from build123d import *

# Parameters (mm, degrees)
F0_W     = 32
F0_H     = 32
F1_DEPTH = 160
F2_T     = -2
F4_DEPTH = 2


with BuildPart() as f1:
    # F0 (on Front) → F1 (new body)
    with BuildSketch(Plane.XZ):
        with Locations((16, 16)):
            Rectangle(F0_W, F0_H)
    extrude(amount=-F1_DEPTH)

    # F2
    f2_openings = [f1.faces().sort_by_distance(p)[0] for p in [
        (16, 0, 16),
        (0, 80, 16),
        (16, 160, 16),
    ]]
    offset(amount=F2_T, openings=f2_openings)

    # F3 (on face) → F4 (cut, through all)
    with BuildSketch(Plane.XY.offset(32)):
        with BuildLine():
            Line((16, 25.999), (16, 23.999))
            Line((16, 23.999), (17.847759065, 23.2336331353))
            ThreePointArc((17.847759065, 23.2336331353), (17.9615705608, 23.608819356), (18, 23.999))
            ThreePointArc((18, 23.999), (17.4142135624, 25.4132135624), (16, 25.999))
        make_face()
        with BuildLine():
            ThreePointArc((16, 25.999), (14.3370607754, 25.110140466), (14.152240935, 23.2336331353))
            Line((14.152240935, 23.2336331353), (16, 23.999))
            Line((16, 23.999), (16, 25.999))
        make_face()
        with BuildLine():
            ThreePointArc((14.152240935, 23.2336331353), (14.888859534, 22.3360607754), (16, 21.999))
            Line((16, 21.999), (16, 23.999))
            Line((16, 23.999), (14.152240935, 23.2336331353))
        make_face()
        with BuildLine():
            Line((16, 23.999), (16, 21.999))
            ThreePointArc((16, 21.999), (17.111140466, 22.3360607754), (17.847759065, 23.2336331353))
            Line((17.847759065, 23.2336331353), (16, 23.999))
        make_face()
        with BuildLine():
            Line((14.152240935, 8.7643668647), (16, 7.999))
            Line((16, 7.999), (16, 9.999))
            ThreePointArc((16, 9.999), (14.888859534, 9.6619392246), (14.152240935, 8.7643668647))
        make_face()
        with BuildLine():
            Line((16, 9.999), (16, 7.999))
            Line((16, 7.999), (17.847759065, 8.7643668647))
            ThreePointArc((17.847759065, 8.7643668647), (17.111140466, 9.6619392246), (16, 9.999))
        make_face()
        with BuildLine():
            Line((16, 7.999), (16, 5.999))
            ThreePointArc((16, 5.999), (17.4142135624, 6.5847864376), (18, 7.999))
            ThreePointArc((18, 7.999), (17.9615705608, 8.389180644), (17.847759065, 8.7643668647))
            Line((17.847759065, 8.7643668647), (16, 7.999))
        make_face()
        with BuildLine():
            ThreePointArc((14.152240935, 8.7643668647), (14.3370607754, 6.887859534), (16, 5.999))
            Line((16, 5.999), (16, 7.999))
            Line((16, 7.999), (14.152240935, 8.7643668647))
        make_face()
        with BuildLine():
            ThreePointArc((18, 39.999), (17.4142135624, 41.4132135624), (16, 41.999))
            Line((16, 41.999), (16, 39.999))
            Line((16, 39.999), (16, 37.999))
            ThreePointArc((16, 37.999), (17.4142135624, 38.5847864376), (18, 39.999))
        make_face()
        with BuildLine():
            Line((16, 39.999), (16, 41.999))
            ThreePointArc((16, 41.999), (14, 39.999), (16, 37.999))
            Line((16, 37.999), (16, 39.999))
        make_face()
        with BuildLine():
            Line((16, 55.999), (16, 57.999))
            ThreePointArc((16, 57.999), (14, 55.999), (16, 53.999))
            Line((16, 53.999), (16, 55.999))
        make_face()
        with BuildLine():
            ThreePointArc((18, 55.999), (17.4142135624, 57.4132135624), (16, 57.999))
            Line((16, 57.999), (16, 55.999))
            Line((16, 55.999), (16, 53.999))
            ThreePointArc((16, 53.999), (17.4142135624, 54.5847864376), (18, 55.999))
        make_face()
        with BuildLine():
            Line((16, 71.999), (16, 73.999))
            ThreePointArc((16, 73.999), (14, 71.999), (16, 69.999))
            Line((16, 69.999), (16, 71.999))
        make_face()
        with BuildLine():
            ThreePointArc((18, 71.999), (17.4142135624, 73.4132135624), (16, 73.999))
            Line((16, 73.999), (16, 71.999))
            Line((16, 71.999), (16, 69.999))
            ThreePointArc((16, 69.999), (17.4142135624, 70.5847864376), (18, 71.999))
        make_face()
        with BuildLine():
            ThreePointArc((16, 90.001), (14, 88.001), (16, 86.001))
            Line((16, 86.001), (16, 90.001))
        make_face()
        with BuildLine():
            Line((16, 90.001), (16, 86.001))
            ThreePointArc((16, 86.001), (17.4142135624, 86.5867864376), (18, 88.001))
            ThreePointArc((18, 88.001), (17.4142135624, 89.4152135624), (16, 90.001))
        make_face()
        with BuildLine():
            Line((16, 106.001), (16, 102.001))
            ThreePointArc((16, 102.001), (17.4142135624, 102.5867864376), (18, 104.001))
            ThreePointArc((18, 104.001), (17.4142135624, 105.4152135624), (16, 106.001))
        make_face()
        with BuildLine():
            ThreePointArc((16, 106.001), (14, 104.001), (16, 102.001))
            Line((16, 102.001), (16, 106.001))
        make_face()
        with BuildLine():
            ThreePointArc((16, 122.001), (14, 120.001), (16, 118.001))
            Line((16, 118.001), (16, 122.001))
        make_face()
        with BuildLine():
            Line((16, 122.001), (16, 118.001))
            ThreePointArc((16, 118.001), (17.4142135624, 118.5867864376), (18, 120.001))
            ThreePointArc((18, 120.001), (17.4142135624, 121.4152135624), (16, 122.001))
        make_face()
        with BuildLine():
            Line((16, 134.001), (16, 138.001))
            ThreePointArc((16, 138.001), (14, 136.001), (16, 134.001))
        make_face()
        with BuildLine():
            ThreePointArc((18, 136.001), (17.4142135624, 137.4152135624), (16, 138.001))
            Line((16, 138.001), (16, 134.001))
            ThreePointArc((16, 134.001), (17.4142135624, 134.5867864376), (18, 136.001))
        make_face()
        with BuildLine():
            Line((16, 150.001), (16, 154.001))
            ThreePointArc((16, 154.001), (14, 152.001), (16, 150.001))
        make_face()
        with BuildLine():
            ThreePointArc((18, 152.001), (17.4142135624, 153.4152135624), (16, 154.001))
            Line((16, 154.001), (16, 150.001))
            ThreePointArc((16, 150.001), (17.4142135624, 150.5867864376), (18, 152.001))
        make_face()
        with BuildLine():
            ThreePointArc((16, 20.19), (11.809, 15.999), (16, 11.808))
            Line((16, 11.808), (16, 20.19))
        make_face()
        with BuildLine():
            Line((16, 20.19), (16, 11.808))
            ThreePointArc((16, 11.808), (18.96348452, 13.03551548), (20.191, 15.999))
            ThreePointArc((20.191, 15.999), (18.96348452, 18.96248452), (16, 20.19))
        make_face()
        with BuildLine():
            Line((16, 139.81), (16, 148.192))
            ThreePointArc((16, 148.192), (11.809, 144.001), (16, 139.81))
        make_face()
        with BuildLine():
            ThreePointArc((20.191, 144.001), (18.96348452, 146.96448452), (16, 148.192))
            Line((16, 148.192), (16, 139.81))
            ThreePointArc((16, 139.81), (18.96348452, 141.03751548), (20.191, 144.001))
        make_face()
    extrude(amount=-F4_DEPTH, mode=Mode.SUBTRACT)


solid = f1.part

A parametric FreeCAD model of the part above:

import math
import FreeCAD as App
import Part
import Sketcher


def faces_at(feature, points):
    """Names of the faces that lie closest to the given points."""
    faces = feature.Shape.Faces
    near = lambda p: min(range(len(faces)), key=lambda i: faces[i].distToShape(Part.Vertex(*p))[0])
    return sorted({f"Face{near(p) + 1}" for p in points})


def add_polygon(sketch, points):
    """Adds a closed chain of lines whose ends are joined by coincident constraints."""
    first, n = sketch.GeometryCount, len(points)
    for a, b in zip(points, points[1:] + points[:1]):
        sketch.addGeometry(Part.LineSegment(App.Vector(*a, 0), App.Vector(*b, 0)), False)
    for i in range(n):
        sketch.addConstraint(Sketcher.Constraint("Coincident", first + i, 2, first + (i + 1) % n, 1))

doc = App.newDocument("Part")
body = doc.addObject("PartDesign::Body", "Body")

# Sketch on XZ plane
sketch1 = body.newObject("Sketcher::SketchObject", "Sketch")
sketch1.AttachmentSupport = (doc.getObject("XZ_Plane"), [""])
sketch1.MapMode = "FlatFace"
add_polygon(sketch1, [(0, 32), (0, 0), (32, 0), (32, 32)])  # lines 0-3
sketch1.addConstraint([
    Sketcher.Constraint("Vertical", 0),
    Sketcher.Constraint("Horizontal", 1),
    Sketcher.Constraint("Vertical", 2),
    Sketcher.Constraint("Horizontal", 3),
    Sketcher.Constraint("Coincident", 0, 2, -1, 1),
    Sketcher.Constraint("Equal", 3, 0),
    Sketcher.Constraint("DistanceX", 1, 1, 1, 2, 32.0),
])
pad1 = body.newObject("PartDesign::Pad", "Pad")
pad1.Profile = sketch1
pad1.Length = 160
pad1.Reversed = True
doc.recompute()

thickness = body.newObject("PartDesign::Thickness", "Thickness")
thickness.Base = (pad1, faces_at(pad1, [(16, 0, 16), (0, 80, 16), (16, 160, 16)]))
thickness.Value = 2
thickness.Reversed = True
thickness.Join = "Arc"

# Sketch on XY plane
sketch2 = body.newObject("Sketcher::SketchObject", "Sketch001")
sketch2.AttachmentSupport = (doc.getObject("XY_Plane"), [""])
sketch2.MapMode = "FlatFace"
sketch2.AttachmentOffset = App.Placement(App.Vector(0, 0, 32), App.Rotation())
sketch2.addGeometry([
    Part.ArcOfCircle(Part.Circle(App.Vector(16, 24, 0), App.Vector(0, 0, 1), 2), math.radians(-23), math.radians(0)),  # 0
    Part.ArcOfCircle(Part.Circle(App.Vector(16, 24, 0), App.Vector(0, 0, 1), 2), math.radians(0), math.radians(90)),  # 1
    Part.ArcOfCircle(Part.Circle(App.Vector(16, 24, 0), App.Vector(0, 0, 1), 2), math.radians(90), math.radians(203)),  # 2
    Part.ArcOfCircle(Part.Circle(App.Vector(16, 24, 0), App.Vector(0, 0, 1), 2), math.radians(-157), math.radians(-90)),  # 3
    Part.ArcOfCircle(Part.Circle(App.Vector(16, 24, 0), App.Vector(0, 0, 1), 2), math.radians(-90), math.radians(-23)),  # 4
    Part.ArcOfCircle(Part.Circle(App.Vector(16, 8, 0), App.Vector(0, 0, 1), 2), math.radians(-90), math.radians(0)),  # 5
    Part.ArcOfCircle(Part.Circle(App.Vector(16, 8, 0), App.Vector(0, 0, 1), 2), math.radians(0), math.radians(23)),  # 6
    Part.ArcOfCircle(Part.Circle(App.Vector(16, 8, 0), App.Vector(0, 0, 1), 2), math.radians(23), math.radians(90)),  # 7
    Part.ArcOfCircle(Part.Circle(App.Vector(16, 8, 0), App.Vector(0, 0, 1), 2), math.radians(90), math.radians(157)),  # 8
    Part.ArcOfCircle(Part.Circle(App.Vector(16, 8, 0), App.Vector(0, 0, 1), 2), math.radians(157), math.radians(270)),  # 9
    Part.ArcOfCircle(Part.Circle(App.Vector(16, 40, 0), App.Vector(0, 0, 1), 2), math.radians(0), math.radians(90)),  # 10
    Part.ArcOfCircle(Part.Circle(App.Vector(16, 40, 0), App.Vector(0, 0, 1), 2), math.radians(90), math.radians(270)),  # 11
    Part.ArcOfCircle(Part.Circle(App.Vector(16, 40, 0), App.Vector(0, 0, 1), 2), math.radians(-90), math.radians(0)),  # 12
    Part.ArcOfCircle(Part.Circle(App.Vector(16, 56, 0), App.Vector(0, 0, 1), 2), math.radians(90), math.radians(270)),  # 13
    Part.ArcOfCircle(Part.Circle(App.Vector(16, 56, 0), App.Vector(0, 0, 1), 2), math.radians(-90), math.radians(0)),  # 14
    Part.ArcOfCircle(Part.Circle(App.Vector(16, 56, 0), App.Vector(0, 0, 1), 2), math.radians(0), math.radians(90)),  # 15
    Part.ArcOfCircle(Part.Circle(App.Vector(16, 72, 0), App.Vector(0, 0, 1), 2), math.radians(90), math.radians(270)),  # 16
    Part.ArcOfCircle(Part.Circle(App.Vector(16, 72, 0), App.Vector(0, 0, 1), 2), math.radians(-90), math.radians(0)),  # 17
    Part.ArcOfCircle(Part.Circle(App.Vector(16, 72, 0), App.Vector(0, 0, 1), 2), math.radians(0), math.radians(90)),  # 18
    Part.ArcOfCircle(Part.Circle(App.Vector(16, 88, 0), App.Vector(0, 0, 1), 2), math.radians(90), math.radians(270)),  # 19
    Part.ArcOfCircle(Part.Circle(App.Vector(16, 88, 0), App.Vector(0, 0, 1), 2), math.radians(-90), math.radians(0)),  # 20
    Part.ArcOfCircle(Part.Circle(App.Vector(16, 88, 0), App.Vector(0, 0, 1), 2), math.radians(0), math.radians(90)),  # 21
    Part.ArcOfCircle(Part.Circle(App.Vector(16, 104, 0), App.Vector(0, 0, 1), 2), math.radians(-90), math.radians(0)),  # 22
    Part.ArcOfCircle(Part.Circle(App.Vector(16, 104, 0), App.Vector(0, 0, 1), 2), math.radians(0), math.radians(90)),  # 23
    Part.ArcOfCircle(Part.Circle(App.Vector(16, 104, 0), App.Vector(0, 0, 1), 2), math.radians(90), math.radians(270)),  # 24
    Part.ArcOfCircle(Part.Circle(App.Vector(16, 120, 0), App.Vector(0, 0, 1), 2), math.radians(90), math.radians(270)),  # 25
    Part.ArcOfCircle(Part.Circle(App.Vector(16, 120, 0), App.Vector(0, 0, 1), 2), math.radians(-90), math.radians(0)),  # 26
    Part.ArcOfCircle(Part.Circle(App.Vector(16, 120, 0), App.Vector(0, 0, 1), 2), math.radians(0), math.radians(90)),  # 27
    Part.ArcOfCircle(Part.Circle(App.Vector(16, 136, 0), App.Vector(0, 0, 1), 2), math.radians(90), math.radians(270)),  # 28
    Part.ArcOfCircle(Part.Circle(App.Vector(16, 136, 0), App.Vector(0, 0, 1), 2), math.radians(-90), math.radians(0)),  # 29
    Part.ArcOfCircle(Part.Circle(App.Vector(16, 136, 0), App.Vector(0, 0, 1), 2), math.radians(0), math.radians(90)),  # 30
    Part.ArcOfCircle(Part.Circle(App.Vector(16, 152, 0), App.Vector(0, 0, 1), 2), math.radians(90), math.radians(270)),  # 31
    Part.ArcOfCircle(Part.Circle(App.Vector(16, 152, 0), App.Vector(0, 0, 1), 2), math.radians(-90), math.radians(0)),  # 32
    Part.ArcOfCircle(Part.Circle(App.Vector(16, 152, 0), App.Vector(0, 0, 1), 2), math.radians(0), math.radians(90)),  # 33
    Part.ArcOfCircle(Part.Circle(App.Vector(16, 16, 0), App.Vector(0, 0, 1), 4.2), math.radians(90), math.radians(270)),  # 34
    Part.ArcOfCircle(Part.Circle(App.Vector(16, 16, 0), App.Vector(0, 0, 1), 4.2), math.radians(-90), math.radians(0)),  # 35
    Part.ArcOfCircle(Part.Circle(App.Vector(16, 16, 0), App.Vector(0, 0, 1), 4.2), math.radians(0), math.radians(90)),  # 36
    Part.ArcOfCircle(Part.Circle(App.Vector(16, 144, 0), App.Vector(0, 0, 1), 4.2), math.radians(90), math.radians(270)),  # 37
    Part.ArcOfCircle(Part.Circle(App.Vector(16, 144, 0), App.Vector(0, 0, 1), 4.2), math.radians(-90), math.radians(0)),  # 38
    Part.ArcOfCircle(Part.Circle(App.Vector(16, 144, 0), App.Vector(0, 0, 1), 4.2), math.radians(0), math.radians(90)),  # 39
], False)
sketch2.addConstraint([
    Sketcher.Constraint("Tangent", 0, 2, 1, 1),
    Sketcher.Constraint("Tangent", 1, 2, 2, 1),
    Sketcher.Constraint("Tangent", 2, 2, 3, 1),
    Sketcher.Constraint("Tangent", 3, 2, 4, 1),
    Sketcher.Constraint("Tangent", 4, 2, 0, 1),
    Sketcher.Constraint("Tangent", 5, 2, 6, 1),
    Sketcher.Constraint("Tangent", 6, 2, 7, 1),
    Sketcher.Constraint("Tangent", 7, 2, 8, 1),
    Sketcher.Constraint("Tangent", 8, 2, 9, 1),
    Sketcher.Constraint("Tangent", 9, 2, 5, 1),
    Sketcher.Constraint("Tangent", 10, 2, 11, 1),
    Sketcher.Constraint("Tangent", 11, 2, 12, 1),
    Sketcher.Constraint("Tangent", 12, 2, 10, 1),
    Sketcher.Constraint("Tangent", 13, 2, 14, 1),
    Sketcher.Constraint("Tangent", 14, 2, 15, 1),
    Sketcher.Constraint("Tangent", 15, 2, 13, 1),
    Sketcher.Constraint("Tangent", 16, 2, 17, 1),
    Sketcher.Constraint("Tangent", 17, 2, 18, 1),
    Sketcher.Constraint("Tangent", 18, 2, 16, 1),
    Sketcher.Constraint("Tangent", 19, 2, 20, 1),
    Sketcher.Constraint("Tangent", 20, 2, 21, 1),
    Sketcher.Constraint("Tangent", 21, 2, 19, 1),
    Sketcher.Constraint("Tangent", 22, 2, 23, 1),
    Sketcher.Constraint("Tangent", 23, 2, 24, 1),
    Sketcher.Constraint("Tangent", 24, 2, 22, 1),
    Sketcher.Constraint("Tangent", 25, 2, 26, 1),
    Sketcher.Constraint("Tangent", 26, 2, 27, 1),
    Sketcher.Constraint("Tangent", 27, 2, 25, 1),
    Sketcher.Constraint("Tangent", 28, 2, 29, 1),
    Sketcher.Constraint("Tangent", 29, 2, 30, 1),
    Sketcher.Constraint("Tangent", 30, 2, 28, 1),
    Sketcher.Constraint("Tangent", 31, 2, 32, 1),
    Sketcher.Constraint("Tangent", 32, 2, 33, 1),
    Sketcher.Constraint("Tangent", 33, 2, 31, 1),
    Sketcher.Constraint("Tangent", 34, 2, 35, 1),
    Sketcher.Constraint("Tangent", 35, 2, 36, 1),
    Sketcher.Constraint("Tangent", 36, 2, 34, 1),
    Sketcher.Constraint("Tangent", 37, 2, 38, 1),
    Sketcher.Constraint("Tangent", 38, 2, 39, 1),
    Sketcher.Constraint("Tangent", 39, 2, 37, 1),
    Sketcher.Constraint("Coincident", 2, 3, 0, 3),
    Sketcher.Constraint("Coincident", 7, 3, 5, 3),
    Sketcher.Constraint("Equal", 4, 5),
    Sketcher.Constraint("Equal", 9, 10),
    Sketcher.Constraint("Equal", 12, 13),
    Sketcher.Constraint("Equal", 15, 16),
    Sketcher.Constraint("Equal", 18, 19),
    Sketcher.Constraint("Equal", 21, 22),
    Sketcher.Constraint("Equal", 24, 25),
    Sketcher.Constraint("Equal", 27, 28),
    Sketcher.Constraint("Equal", 30, 31),
    Sketcher.Constraint("Equal", 36, 37),
    Sketcher.Constraint("Horizontal", 4, 3, 0, 2),
    Sketcher.Constraint("Horizontal", 2, 2, 4, 2),
    Sketcher.Constraint("Horizontal", 9, 3, 5, 2),
    Sketcher.Constraint("Horizontal", 6, 2, 8, 2),
    Sketcher.Constraint("Horizontal", 11, 3, 12, 2),
    Sketcher.Constraint("Horizontal", 15, 3, 14, 2),
    Sketcher.Constraint("Horizontal", 18, 3, 17, 2),
    Sketcher.Constraint("Horizontal", 21, 3, 20, 2),
    Sketcher.Constraint("Horizontal", 24, 3, 22, 2),
    Sketcher.Constraint("Horizontal", 27, 3, 26, 2),
    Sketcher.Constraint("Horizontal", 30, 3, 29, 2),
    Sketcher.Constraint("Horizontal", 33, 3, 32, 2),
    Sketcher.Constraint("Horizontal", 36, 3, 35, 2),
    Sketcher.Constraint("Horizontal", 39, 3, 38, 2),
    Sketcher.Constraint("Vertical", 4, 3, 5, 3),
    Sketcher.Constraint("Vertical", 9, 3, 10, 3),
    Sketcher.Constraint("Vertical", 12, 3, 13, 3),
    Sketcher.Constraint("Vertical", 15, 3, 16, 3),
    Sketcher.Constraint("Vertical", 18, 3, 19, 3),
    Sketcher.Constraint("Vertical", 21, 3, 22, 3),
    Sketcher.Constraint("Vertical", 24, 3, 25, 3),
    Sketcher.Constraint("Vertical", 27, 3, 28, 3),
    Sketcher.Constraint("Vertical", 30, 3, 31, 3),
    Sketcher.Constraint("Vertical", 33, 3, 34, 3),
    Sketcher.Constraint("Vertical", 36, 3, 37, 3),
    Sketcher.Constraint("Vertical", 39, 3, 1, 2),
    Sketcher.Constraint("Vertical", 1, 2, 3, 2),
    Sketcher.Constraint("Vertical", 4, 2, 6, 2),
    Sketcher.Constraint("Vertical", 3, 2, 7, 2),
    Sketcher.Constraint("Vertical", 7, 2, 9, 2),
    Sketcher.Constraint("Vertical", 9, 2, 10, 2),
    Sketcher.Constraint("Vertical", 10, 2, 11, 2),
    Sketcher.Constraint("Vertical", 11, 2, 13, 2),
    Sketcher.Constraint("Vertical", 13, 2, 15, 2),
    Sketcher.Constraint("Vertical", 15, 2, 16, 2),
    Sketcher.Constraint("Vertical", 16, 2, 18, 2),
    Sketcher.Constraint("Vertical", 18, 2, 19, 2),
    Sketcher.Constraint("Vertical", 19, 2, 21, 2),
    Sketcher.Constraint("Vertical", 21, 2, 23, 2),
    Sketcher.Constraint("Vertical", 23, 2, 24, 2),
    Sketcher.Constraint("Vertical", 24, 2, 25, 2),
    Sketcher.Constraint("Vertical", 25, 2, 27, 2),
    Sketcher.Constraint("Vertical", 27, 2, 28, 2),
    Sketcher.Constraint("Vertical", 28, 2, 30, 2),
    Sketcher.Constraint("Vertical", 30, 2, 31, 2),
    Sketcher.Constraint("Vertical", 31, 2, 33, 2),
    Sketcher.Constraint("Vertical", 33, 2, 34, 2),
    Sketcher.Constraint("Vertical", 34, 2, 36, 2),
    Sketcher.Constraint("Vertical", 36, 2, 37, 2),
    Sketcher.Constraint("Vertical", 37, 2, 39, 2),
    Sketcher.Constraint("Radius", 0, 2.0),
    Sketcher.Constraint("DistanceX", -1, 1, 0, 3, 16.0),
    Sketcher.Constraint("Radius", 34, 4.191),
    Sketcher.Constraint("DistanceY", -1, 1, 36, 2, 20.19),
    Sketcher.Constraint("DistanceY", -1, 1, 37, 2, 139.81),
    Sketcher.Constraint("DistanceY", -1, 1, 0, 3, 23.999),
    Sketcher.Constraint("DistanceY", -1, 1, 5, 3, 7.999),
    Sketcher.Constraint("DistanceY", -1, 1, 10, 3, 39.999),
    Sketcher.Constraint("DistanceY", -1, 1, 13, 3, 55.999),
    Sketcher.Constraint("DistanceY", -1, 1, 16, 3, 71.999),
    Sketcher.Constraint("DistanceY", -1, 1, 19, 3, 88.001),
    Sketcher.Constraint("DistanceY", -1, 1, 22, 3, 104.001),
    Sketcher.Constraint("DistanceY", -1, 1, 25, 3, 120.001),
    Sketcher.Constraint("DistanceY", -1, 1, 28, 3, 136.001),
    Sketcher.Constraint("DistanceY", -1, 1, 31, 3, 152.001),
    Sketcher.Constraint("DistanceX", -1, 1, 2, 2, 14.152241),
])
pocket1 = body.newObject("PartDesign::Pocket", "Pocket")
pocket1.Profile = sketch2
pocket1.Length = 2

doc.recompute()
